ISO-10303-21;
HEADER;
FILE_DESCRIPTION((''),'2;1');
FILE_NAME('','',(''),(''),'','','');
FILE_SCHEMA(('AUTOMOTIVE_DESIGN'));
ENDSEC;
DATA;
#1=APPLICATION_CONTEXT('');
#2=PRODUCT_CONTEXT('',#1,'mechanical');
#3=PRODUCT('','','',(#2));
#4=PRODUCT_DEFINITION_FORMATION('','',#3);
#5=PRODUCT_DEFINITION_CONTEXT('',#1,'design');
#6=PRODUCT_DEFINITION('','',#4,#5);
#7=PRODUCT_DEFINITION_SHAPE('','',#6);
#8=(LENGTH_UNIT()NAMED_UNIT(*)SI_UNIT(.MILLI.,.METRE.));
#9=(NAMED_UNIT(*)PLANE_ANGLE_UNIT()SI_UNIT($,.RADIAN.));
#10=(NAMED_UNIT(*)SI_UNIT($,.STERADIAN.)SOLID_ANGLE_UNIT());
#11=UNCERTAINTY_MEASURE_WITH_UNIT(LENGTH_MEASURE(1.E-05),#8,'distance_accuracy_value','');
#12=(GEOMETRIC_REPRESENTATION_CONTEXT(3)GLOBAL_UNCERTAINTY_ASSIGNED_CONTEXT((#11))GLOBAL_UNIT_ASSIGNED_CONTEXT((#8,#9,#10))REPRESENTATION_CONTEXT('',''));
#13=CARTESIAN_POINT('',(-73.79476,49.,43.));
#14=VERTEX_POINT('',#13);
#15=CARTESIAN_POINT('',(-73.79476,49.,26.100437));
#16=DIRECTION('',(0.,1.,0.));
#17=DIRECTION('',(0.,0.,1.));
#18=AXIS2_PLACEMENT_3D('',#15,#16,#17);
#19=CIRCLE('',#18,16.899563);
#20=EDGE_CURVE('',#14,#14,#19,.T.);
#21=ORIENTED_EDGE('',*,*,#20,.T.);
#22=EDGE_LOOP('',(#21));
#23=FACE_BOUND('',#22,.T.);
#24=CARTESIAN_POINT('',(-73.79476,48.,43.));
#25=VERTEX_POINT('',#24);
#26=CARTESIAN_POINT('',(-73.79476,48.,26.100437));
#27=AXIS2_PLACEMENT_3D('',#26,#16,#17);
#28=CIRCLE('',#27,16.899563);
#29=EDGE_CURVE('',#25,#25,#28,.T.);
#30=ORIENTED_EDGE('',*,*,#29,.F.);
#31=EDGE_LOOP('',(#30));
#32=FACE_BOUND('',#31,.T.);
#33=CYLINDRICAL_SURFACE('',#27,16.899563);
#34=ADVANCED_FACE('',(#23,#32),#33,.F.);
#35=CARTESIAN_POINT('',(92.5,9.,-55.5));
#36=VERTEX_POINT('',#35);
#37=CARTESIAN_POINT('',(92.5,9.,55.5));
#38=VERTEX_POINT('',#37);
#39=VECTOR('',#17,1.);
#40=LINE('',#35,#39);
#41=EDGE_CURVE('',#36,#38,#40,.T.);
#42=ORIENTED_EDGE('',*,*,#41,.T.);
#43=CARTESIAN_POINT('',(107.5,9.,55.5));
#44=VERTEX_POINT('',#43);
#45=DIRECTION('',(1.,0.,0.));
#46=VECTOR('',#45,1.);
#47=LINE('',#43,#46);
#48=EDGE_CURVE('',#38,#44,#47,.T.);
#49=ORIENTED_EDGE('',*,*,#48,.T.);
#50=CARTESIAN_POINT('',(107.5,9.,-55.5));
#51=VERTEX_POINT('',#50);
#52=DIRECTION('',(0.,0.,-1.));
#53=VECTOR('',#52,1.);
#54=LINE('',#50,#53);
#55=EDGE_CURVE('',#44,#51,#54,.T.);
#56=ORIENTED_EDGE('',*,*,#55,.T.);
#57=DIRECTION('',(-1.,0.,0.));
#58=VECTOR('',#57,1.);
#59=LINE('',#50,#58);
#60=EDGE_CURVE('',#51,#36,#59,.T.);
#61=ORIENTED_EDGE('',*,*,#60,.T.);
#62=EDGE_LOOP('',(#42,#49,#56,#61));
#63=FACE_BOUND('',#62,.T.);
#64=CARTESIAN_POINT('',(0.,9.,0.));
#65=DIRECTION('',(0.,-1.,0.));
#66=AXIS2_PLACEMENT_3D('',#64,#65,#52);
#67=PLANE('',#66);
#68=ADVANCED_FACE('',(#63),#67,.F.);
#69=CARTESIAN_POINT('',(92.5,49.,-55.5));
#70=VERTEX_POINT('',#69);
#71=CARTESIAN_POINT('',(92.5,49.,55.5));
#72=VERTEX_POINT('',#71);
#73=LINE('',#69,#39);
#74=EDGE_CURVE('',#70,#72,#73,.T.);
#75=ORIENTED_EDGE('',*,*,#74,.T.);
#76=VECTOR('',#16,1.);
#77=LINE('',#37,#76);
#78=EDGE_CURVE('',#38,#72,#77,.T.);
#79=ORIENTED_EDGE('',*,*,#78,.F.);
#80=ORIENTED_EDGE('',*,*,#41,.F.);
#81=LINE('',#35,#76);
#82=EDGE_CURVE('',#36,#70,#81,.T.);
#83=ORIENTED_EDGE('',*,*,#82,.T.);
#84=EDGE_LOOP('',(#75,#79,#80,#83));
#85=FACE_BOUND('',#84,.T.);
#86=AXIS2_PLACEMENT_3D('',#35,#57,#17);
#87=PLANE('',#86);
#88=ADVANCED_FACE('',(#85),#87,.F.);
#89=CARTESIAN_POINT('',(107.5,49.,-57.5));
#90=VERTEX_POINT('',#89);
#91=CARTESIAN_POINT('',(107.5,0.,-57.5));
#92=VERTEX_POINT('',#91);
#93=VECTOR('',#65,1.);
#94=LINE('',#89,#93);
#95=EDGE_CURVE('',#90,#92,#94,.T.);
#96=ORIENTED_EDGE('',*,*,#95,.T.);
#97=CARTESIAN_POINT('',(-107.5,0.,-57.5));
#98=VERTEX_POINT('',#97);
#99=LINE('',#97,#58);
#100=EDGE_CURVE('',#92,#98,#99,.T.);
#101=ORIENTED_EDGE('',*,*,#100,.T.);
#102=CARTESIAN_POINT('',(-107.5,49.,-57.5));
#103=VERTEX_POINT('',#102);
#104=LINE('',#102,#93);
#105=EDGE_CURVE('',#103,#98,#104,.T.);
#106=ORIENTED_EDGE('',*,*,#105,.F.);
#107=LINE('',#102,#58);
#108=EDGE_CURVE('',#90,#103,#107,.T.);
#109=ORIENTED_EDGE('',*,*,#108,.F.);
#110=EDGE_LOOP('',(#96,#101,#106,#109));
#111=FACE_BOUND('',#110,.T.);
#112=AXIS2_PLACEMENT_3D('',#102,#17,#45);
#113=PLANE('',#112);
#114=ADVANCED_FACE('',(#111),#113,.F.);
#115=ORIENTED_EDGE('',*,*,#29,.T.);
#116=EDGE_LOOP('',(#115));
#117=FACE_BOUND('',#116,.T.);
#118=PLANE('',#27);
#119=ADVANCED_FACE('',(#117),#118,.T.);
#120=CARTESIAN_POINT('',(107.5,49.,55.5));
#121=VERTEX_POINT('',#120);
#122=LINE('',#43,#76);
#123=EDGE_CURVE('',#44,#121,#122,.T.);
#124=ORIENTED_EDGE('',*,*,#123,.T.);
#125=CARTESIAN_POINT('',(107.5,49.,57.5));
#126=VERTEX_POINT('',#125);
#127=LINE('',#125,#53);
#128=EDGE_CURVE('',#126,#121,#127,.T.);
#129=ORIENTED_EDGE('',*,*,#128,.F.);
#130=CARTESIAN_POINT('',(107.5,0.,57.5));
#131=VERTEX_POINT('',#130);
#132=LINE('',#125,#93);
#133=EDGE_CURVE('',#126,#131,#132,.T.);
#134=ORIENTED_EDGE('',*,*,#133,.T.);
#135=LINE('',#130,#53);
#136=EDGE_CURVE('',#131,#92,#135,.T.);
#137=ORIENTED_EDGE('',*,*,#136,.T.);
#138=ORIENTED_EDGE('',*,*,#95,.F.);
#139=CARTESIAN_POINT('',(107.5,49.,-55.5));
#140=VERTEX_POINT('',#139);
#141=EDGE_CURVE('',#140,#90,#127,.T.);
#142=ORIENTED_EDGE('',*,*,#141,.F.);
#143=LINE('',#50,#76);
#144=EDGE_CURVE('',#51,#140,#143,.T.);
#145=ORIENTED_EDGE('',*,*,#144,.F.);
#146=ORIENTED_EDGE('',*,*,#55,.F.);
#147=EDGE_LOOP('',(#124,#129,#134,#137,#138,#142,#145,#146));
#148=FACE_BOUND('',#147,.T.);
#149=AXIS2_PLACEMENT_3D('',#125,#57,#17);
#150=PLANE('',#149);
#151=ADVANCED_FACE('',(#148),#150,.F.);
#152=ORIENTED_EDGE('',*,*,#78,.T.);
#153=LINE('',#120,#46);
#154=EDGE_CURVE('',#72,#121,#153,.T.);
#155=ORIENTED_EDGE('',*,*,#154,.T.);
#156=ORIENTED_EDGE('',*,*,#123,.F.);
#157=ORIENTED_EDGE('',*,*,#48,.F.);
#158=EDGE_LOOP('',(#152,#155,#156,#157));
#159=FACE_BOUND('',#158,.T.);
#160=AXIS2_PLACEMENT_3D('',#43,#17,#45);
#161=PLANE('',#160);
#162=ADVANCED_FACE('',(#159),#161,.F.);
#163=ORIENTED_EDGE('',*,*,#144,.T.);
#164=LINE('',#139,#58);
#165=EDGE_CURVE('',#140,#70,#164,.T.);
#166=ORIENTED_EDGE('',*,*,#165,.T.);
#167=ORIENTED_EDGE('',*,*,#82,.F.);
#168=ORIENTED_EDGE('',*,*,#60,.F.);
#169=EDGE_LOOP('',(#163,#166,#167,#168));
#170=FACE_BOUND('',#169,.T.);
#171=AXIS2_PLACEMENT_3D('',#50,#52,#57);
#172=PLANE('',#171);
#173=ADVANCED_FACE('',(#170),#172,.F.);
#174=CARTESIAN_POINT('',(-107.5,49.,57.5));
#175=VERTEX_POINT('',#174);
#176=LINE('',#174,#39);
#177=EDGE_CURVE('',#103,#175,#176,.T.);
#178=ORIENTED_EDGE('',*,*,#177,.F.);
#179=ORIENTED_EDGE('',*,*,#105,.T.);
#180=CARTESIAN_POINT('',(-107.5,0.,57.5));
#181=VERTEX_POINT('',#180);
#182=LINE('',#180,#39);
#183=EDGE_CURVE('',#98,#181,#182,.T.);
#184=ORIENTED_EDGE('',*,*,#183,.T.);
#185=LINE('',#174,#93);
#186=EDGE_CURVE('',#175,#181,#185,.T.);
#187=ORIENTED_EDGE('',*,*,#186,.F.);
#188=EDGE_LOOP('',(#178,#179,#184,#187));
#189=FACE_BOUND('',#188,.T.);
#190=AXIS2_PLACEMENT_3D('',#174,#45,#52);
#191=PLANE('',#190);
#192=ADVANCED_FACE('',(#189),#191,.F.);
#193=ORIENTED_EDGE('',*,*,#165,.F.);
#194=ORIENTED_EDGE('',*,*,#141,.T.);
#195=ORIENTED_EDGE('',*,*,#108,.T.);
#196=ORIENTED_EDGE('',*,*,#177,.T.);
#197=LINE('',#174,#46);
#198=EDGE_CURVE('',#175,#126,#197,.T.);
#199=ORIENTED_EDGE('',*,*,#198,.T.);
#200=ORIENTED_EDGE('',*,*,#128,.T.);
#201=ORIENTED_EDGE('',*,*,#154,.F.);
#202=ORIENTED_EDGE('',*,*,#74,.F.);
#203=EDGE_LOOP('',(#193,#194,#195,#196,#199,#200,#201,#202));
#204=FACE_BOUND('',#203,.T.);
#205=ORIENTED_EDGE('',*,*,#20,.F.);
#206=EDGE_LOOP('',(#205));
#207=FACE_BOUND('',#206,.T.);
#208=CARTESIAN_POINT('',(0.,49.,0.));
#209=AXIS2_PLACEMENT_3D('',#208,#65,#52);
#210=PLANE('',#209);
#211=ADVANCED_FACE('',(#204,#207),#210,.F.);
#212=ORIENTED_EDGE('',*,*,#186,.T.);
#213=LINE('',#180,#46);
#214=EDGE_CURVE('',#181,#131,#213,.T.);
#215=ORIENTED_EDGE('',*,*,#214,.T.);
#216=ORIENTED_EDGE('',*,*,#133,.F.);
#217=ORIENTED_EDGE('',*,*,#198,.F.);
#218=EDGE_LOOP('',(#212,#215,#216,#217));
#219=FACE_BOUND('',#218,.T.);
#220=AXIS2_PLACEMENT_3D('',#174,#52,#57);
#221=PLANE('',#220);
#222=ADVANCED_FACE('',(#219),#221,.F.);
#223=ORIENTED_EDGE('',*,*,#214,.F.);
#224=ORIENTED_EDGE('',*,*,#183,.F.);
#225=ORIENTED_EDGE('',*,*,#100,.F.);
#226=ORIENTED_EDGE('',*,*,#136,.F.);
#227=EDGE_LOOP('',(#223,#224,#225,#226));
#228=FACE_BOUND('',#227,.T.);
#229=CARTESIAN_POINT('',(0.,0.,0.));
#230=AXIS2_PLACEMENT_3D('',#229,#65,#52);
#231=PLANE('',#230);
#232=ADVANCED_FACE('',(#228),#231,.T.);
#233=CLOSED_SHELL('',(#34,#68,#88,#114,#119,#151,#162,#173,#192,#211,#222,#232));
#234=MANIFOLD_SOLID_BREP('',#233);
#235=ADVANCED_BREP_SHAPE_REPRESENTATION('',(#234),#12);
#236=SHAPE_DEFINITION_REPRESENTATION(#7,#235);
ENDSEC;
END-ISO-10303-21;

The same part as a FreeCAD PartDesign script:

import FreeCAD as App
import Part
import Sketcher
from FreeCAD import Vector

doc = App.newDocument("Part")
body = doc.addObject("PartDesign::Body", "Body")

# Sketch on XZ plane
sketch1 = doc.addObject("Sketcher::SketchObject", "Sketch")
body.addObject(sketch1)
sketch1.AttachmentSupport = (doc.XZ_Plane, [""])
sketch1.MapMode = "FlatFace"
sketch1.addGeometry(Part.LineSegment(Vector(-108, -58, 0), Vector(-108, 58, 0)), False)
sketch1.addGeometry(Part.LineSegment(Vector(-108, 58, 0), Vector(108, 58, 0)), False)
sketch1.addGeometry(Part.LineSegment(Vector(108, 58, 0), Vector(108, -58, 0)), False)
sketch1.addGeometry(Part.LineSegment(Vector(108, -58, 0), Vector(-108, -58, 0)), False)
sketch1.addConstraint(Sketcher.Constraint("Coincident", 0, 2, 1, 1))
sketch1.addConstraint(Sketcher.Constraint("Coincident", 1, 2, 2, 1))
sketch1.addConstraint(Sketcher.Constraint("Coincident", 2, 2, 3, 1))
sketch1.addConstraint(Sketcher.Constraint("Coincident", 3, 2, 0, 1))
sketch1.addConstraint(Sketcher.Constraint("Vertical", 0))
sketch1.addConstraint(Sketcher.Constraint("Horizontal", 1))
sketch1.addConstraint(Sketcher.Constraint("Vertical", 2))
sketch1.addConstraint(Sketcher.Constraint("Horizontal", 3))
sketch1.addConstraint(Sketcher.Constraint("Symmetric", 0, 2, 2, 2, -1, 1))
sketch1.addConstraint(Sketcher.Constraint("DistanceX", 1, 1, 1, 2, 215.0))
sketch1.addConstraint(Sketcher.Constraint("DistanceY", 0, 1, 0, 2, 115.0))
pad1 = doc.addObject("PartDesign::Pad", "Pad")
body.addObject(pad1)
pad1.Profile = sketch1
pad1.Length = 49
pad1.Reversed = True

# Sketch on XZ plane
sketch2 = doc.addObject("Sketcher::SketchObject", "Sketch001")
body.addObject(sketch2)
sketch2.AttachmentSupport = (doc.XZ_Plane, [""])
sketch2.MapMode = "FlatFace"
sketch2.AttachmentOffset = App.Placement(Vector(0, 0, -49), App.Rotation())
sketch2.addGeometry(Part.Circle(Vector(-74, 26, 0), Vector(0, 0, 1), 17), False)
sketch2.addConstraint(Sketcher.Constraint("Diameter", 0, 33.799127))
sketch2.addConstraint(Sketcher.Constraint("DistanceX", 0, 3, -1, 1, 73.79476))
sketch2.addConstraint(Sketcher.Constraint("DistanceY", -1, 1, 0, 3, 26.100437))
pocket1 = doc.addObject("PartDesign::Pocket", "Pocket")
body.addObject(pocket1)
pocket1.Profile = sketch2
pocket1.Length = 1
pocket1.Reversed = True

# Sketch on XZ plane
sketch3 = doc.addObject("Sketcher::SketchObject", "Sketch002")
body.addObject(sketch3)
sketch3.AttachmentSupport = (doc.XZ_Plane, [""])
sketch3.MapMode = "FlatFace"
sketch3.AttachmentOffset = App.Placement(Vector(0, 0, -49), App.Rotation())
sketch3.addGeometry(Part.LineSegment(Vector(92, -56, 0), Vector(92, 56, 0)), False)
sketch3.addGeometry(Part.LineSegment(Vector(92, 56, 0), Vector(108, 56, 0)), False)
sketch3.addGeometry(Part.LineSegment(Vector(108, 56, 0), Vector(108, -56, 0)), False)
sketch3.addGeometry(Part.LineSegment(Vector(108, -56, 0), Vector(92, -56, 0)), False)
sketch3.addConstraint(Sketcher.Constraint("Coincident", 0, 2, 1, 1))
sketch3.addConstraint(Sketcher.Constraint("Coincident", 1, 2, 2, 1))
sketch3.addConstraint(Sketcher.Constraint("Coincident", 2, 2, 3, 1))
sketch3.addConstraint(Sketcher.Constraint("Coincident", 3, 2, 0, 1))
sketch3.addConstraint(Sketcher.Constraint("Vertical", 0))
sketch3.addConstraint(Sketcher.Constraint("Horizontal", 1))
sketch3.addConstraint(Sketcher.Constraint("Vertical", 2))
sketch3.addConstraint(Sketcher.Constraint("Horizontal", 3))
sketch3.addConstraint(Sketcher.Constraint("DistanceX", 1, 1, 1, 2, 15.0))
sketch3.addConstraint(Sketcher.Constraint("DistanceY", 0, 1, 0, 2, 111.0))
sketch3.addConstraint(Sketcher.Constraint("DistanceX", -1, 1, 0, 2, 92.5))
sketch3.addConstraint(Sketcher.Constraint("DistanceY", -1, 1, 0, 2, 55.5))
pocket2 = doc.addObject("PartDesign::Pocket", "Pocket001")
body.addObject(pocket2)
pocket2.Profile = sketch3
pocket2.Length = 40
pocket2.Reversed = True

doc.recompute()
